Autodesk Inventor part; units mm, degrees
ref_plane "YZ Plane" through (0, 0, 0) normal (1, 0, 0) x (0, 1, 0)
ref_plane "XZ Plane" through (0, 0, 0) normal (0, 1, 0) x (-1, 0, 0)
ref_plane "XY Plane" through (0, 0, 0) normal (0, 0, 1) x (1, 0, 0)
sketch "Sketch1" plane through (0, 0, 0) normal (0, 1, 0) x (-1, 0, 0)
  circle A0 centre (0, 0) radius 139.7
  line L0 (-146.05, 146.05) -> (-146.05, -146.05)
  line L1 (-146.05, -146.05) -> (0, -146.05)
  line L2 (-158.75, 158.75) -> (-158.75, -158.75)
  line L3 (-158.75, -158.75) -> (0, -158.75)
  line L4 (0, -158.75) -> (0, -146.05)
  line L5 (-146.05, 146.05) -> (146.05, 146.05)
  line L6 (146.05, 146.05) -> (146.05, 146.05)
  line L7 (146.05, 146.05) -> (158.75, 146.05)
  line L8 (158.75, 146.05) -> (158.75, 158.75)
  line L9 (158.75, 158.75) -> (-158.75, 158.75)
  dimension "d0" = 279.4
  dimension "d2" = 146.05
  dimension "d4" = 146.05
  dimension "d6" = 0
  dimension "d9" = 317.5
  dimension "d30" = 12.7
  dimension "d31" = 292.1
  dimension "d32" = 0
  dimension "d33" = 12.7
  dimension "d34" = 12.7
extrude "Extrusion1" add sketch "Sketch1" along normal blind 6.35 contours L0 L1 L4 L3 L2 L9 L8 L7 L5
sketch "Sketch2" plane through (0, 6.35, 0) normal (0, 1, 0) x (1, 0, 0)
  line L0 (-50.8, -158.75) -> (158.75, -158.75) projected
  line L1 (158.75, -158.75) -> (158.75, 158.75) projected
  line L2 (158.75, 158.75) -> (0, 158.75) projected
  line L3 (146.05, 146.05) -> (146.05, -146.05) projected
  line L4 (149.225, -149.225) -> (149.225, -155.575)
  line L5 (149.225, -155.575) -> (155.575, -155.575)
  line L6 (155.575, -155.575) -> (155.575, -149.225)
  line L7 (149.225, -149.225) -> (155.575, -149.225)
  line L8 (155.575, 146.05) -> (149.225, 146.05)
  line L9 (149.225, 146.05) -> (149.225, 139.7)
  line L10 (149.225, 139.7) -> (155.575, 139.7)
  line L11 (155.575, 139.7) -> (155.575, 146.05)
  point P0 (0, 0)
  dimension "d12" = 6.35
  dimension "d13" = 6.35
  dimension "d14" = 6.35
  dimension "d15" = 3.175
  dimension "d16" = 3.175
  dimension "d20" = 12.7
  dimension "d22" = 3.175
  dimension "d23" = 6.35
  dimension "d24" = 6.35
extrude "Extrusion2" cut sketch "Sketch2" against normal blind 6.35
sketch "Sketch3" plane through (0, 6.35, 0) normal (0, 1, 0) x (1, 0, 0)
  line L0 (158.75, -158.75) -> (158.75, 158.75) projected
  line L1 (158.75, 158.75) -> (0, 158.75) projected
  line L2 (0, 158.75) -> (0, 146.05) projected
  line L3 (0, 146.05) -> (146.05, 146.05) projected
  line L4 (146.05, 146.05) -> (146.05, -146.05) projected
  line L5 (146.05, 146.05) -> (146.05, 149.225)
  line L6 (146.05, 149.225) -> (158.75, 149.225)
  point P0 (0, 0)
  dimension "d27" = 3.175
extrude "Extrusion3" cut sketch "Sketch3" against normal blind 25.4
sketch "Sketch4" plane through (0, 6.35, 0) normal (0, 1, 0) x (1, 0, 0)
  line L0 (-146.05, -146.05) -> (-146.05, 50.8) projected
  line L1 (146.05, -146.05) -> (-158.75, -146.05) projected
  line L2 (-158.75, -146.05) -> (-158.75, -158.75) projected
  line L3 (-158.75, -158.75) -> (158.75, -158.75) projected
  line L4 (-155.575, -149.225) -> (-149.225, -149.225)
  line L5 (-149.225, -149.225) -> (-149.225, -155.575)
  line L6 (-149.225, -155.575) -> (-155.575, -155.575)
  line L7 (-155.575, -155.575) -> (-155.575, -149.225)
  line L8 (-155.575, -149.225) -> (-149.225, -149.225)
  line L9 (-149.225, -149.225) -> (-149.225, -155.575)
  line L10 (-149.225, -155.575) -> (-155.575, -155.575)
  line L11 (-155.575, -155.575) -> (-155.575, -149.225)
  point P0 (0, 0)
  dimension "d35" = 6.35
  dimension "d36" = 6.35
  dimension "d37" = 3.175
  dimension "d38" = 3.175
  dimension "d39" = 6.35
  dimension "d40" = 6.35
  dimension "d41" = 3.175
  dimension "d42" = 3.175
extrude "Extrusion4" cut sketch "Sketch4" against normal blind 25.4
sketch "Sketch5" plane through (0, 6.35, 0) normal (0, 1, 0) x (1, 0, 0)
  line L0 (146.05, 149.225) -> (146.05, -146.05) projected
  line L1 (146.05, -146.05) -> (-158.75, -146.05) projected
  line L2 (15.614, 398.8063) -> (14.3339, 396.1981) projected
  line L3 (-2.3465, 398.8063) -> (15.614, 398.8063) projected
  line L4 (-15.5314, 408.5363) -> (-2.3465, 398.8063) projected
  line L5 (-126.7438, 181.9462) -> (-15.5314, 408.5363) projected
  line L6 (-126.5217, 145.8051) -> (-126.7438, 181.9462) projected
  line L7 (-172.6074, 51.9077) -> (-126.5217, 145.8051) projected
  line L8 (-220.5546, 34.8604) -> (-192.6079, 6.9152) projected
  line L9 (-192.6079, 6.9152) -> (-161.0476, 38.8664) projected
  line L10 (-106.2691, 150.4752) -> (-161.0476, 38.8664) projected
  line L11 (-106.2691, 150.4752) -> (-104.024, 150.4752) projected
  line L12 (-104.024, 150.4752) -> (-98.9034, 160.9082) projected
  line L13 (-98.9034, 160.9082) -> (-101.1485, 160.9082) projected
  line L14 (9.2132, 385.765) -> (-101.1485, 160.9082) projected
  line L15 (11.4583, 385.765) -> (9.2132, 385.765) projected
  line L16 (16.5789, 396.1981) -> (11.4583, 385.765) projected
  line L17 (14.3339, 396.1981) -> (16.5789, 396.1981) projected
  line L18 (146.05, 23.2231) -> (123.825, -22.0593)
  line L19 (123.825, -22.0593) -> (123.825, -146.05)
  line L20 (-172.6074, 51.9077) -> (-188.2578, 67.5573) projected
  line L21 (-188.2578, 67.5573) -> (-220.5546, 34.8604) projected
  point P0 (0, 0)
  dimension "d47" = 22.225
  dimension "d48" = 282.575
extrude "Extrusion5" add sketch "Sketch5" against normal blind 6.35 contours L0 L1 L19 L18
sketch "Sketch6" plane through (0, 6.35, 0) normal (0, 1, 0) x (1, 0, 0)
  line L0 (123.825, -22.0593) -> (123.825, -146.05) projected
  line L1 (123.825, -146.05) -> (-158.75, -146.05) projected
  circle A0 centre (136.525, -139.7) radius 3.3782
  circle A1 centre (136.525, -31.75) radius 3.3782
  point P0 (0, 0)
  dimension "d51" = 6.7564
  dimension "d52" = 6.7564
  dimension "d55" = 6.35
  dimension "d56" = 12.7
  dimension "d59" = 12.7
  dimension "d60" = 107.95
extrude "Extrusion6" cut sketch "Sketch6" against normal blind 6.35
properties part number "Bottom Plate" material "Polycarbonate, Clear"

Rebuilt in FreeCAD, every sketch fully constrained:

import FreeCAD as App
import Part
import Sketcher

V = App.Vector
Q = App.Units.Quantity

doc = App.newDocument("Part")
params = doc.addObject("Spreadsheet::Sheet", "Params")
for row, (alias, value) in enumerate([
    ("sketch1_width", "12.5 in"),
    ("sketch1_height", "11.5 in"),
    ("sketch1_width2", "5.75 in"),
    ("pad1_length", "0.25 in"),
    ("sketch2_width", "0.25 in"),
    ("pocket1_length", "0.25 in"),
    ("sketch3_height", "0.125 in"),
    ("sketch3_width", "0.5 in"),
    ("sketch3_width2", "6.25 in"),
    ("pocket2_length", "1 in"),
    ("sketch4_width", "0.25 in"),
    ("pocket3_length", "1 in"),
    ("sketch5_width", "0.875 in"),
    ("pad2_length", "0.25 in"),
    ("sketch6_diameter", "0.266 in"),
    ("pocket4_length", "0.25 in"),
], start=1):
    params.set(f"A{row}", alias)
    params.set(f"B{row}", "=" + value)
    params.setAlias(f"B{row}", alias)

body = doc.addObject("PartDesign::Body", "Body")

# Sketch on XZ plane
sketch1 = body.newObject("Sketcher::SketchObject", "Sketch")
sketch1.AttachmentSupport = (doc.getObject("XZ_Plane"), [""])
sketch1.MapMode = "FlatFace"
sketch1.addGeometry(Part.LineSegment(V(146, -146, 0), V(146, 146, 0)), False)
sketch1.addGeometry(Part.LineSegment(V(146, 146, 0), V(-159, 146, 0)), False)
sketch1.addGeometry(Part.LineSegment(V(-159, 146, 0), V(-159, 159, 0)), False)
sketch1.addGeometry(Part.LineSegment(V(-159, 159, 0), V(159, 159, 0)), False)
sketch1.addGeometry(Part.LineSegment(V(159, 159, 0), V(159, -159, 0)), False)
sketch1.addGeometry(Part.LineSegment(V(159, -159, 0), V(0, -159, 0)), False)
sketch1.addGeometry(Part.LineSegment(V(0, -159, 0), V(0, -146, 0)), False)
sketch1.addGeometry(Part.LineSegment(V(0, -146, 0), V(146, -146, 0)), False)
sketch1.addConstraint(Sketcher.Constraint("Coincident", 0, 2, 1, 1))
sketch1.addConstraint(Sketcher.Constraint("Coincident", 1, 2, 2, 1))
sketch1.addConstraint(Sketcher.Constraint("Coincident", 2, 2, 3, 1))
sketch1.addConstraint(Sketcher.Constraint("Coincident", 3, 2, 4, 1))
sketch1.addConstraint(Sketcher.Constraint("Coincident", 4, 2, 5, 1))
sketch1.addConstraint(Sketcher.Constraint("Coincident", 5, 2, 6, 1))
sketch1.addConstraint(Sketcher.Constraint("Coincident", 6, 2, 7, 1))
sketch1.addConstraint(Sketcher.Constraint("Coincident", 7, 2, 0, 1))
sketch1.addConstraint(Sketcher.Constraint("Vertical", 0))
sketch1.addConstraint(Sketcher.Constraint("Horizontal", 1))
sketch1.addConstraint(Sketcher.Constraint("Vertical", 2))
sketch1.addConstraint(Sketcher.Constraint("Horizontal", 3))
sketch1.addConstraint(Sketcher.Constraint("Vertical", 4))
sketch1.addConstraint(Sketcher.Constraint("Horizontal", 5))
sketch1.addConstraint(Sketcher.Constraint("Vertical", 6))
sketch1.addConstraint(Sketcher.Constraint("Horizontal", 7))
sketch1.addConstraint(Sketcher.Constraint("Symmetric", 2, 2, 4, 2, -1, 1))
sketch1.addConstraint(Sketcher.Constraint("PointOnObject", 5, 2, -2))
sketch1.addConstraint(Sketcher.Constraint("Equal", 3, 4))
sketch1.addConstraint(Sketcher.Constraint("Equal", 2, 6))
sketch1.addConstraint(Sketcher.Constraint("DistanceX", 3, 1, 3, 2, Q("12.5 in")))
sketch1.addConstraint(Sketcher.Constraint("DistanceY", 0, 1, 0, 2, Q("11.5 in")))
sketch1.addConstraint(Sketcher.Constraint("DistanceX", 7, 1, 7, 2, Q("5.75 in")))
sketch1.setExpression("Constraints[20]", "Params.sketch1_width")
sketch1.setExpression("Constraints[21]", "Params.sketch1_height")
sketch1.setExpression("Constraints[22]", "Params.sketch1_width2")
pad1 = body.newObject("PartDesign::Pad", "Pad")
pad1.Profile = sketch1
pad1.setExpression("Length", "Params.pad1_length")
pad1.Reversed = True

# Sketch on XZ plane
sketch2 = body.newObject("Sketcher::SketchObject", "Sketch001")
sketch2.AttachmentSupport = (doc.getObject("XZ_Plane"), [""])
sketch2.MapMode = "FlatFace"
sketch2.AttachmentOffset = App.Placement(V(0, 0, -0.25 * 25.4), App.Rotation())
sketch2.addGeometry(Part.LineSegment(V(156, 149, 0), V(149, 149, 0)), False)
sketch2.addGeometry(Part.LineSegment(V(149, 149, 0), V(149, 156, 0)), False)
sketch2.addGeometry(Part.LineSegment(V(149, 156, 0), V(156, 156, 0)), False)
sketch2.addGeometry(Part.LineSegment(V(156, 156, 0), V(156, 149, 0)), False)
sketch2.addGeometry(Part.LineSegment(V(156, -140, 0), V(156, -146, 0)), False)
sketch2.addGeometry(Part.LineSegment(V(156, -146, 0), V(149, -146, 0)), False)
sketch2.addGeometry(Part.LineSegment(V(149, -146, 0), V(149, -140, 0)), False)
sketch2.addGeometry(Part.LineSegment(V(149, -140, 0), V(156, -140, 0)), False)
sketch2.addConstraint(Sketcher.Constraint("Coincident", 0, 2, 1, 1))
sketch2.addConstraint(Sketcher.Constraint("Coincident", 1, 2, 2, 1))
sketch2.addConstraint(Sketcher.Constraint("Coincident", 2, 2, 3, 1))
sketch2.addConstraint(Sketcher.Constraint("Coincident", 3, 2, 0, 1))
sketch2.addConstraint(Sketcher.Constraint("Coincident", 4, 2, 5, 1))
sketch2.addConstraint(Sketcher.Constraint("Coincident", 5, 2, 6, 1))
sketch2.addConstraint(Sketcher.Constraint("Coincident", 6, 2, 7, 1))
sketch2.addConstraint(Sketcher.Constraint("Coincident", 7, 2, 4, 1))
sketch2.addConstraint(Sketcher.Constraint("Horizontal", 0))
sketch2.addConstraint(Sketcher.Constraint("Vertical", 1))
sketch2.addConstraint(Sketcher.Constraint("Horizontal", 2))
sketch2.addConstraint(Sketcher.Constraint("Vertical", 3))
sketch2.addConstraint(Sketcher.Constraint("Vertical", 4))
sketch2.addConstraint(Sketcher.Constraint("Horizontal", 5))
sketch2.addConstraint(Sketcher.Constraint("Vertical", 6))
sketch2.addConstraint(Sketcher.Constraint("Horizontal", 7))
sketch2.addConstraint(Sketcher.Constraint("Vertical", 3, 2, 4, 2))
sketch2.addConstraint(Sketcher.Constraint("Vertical", 1, 2, 5, 2))
sketch2.addConstraint(Sketcher.Constraint("Equal", 7, 1))
sketch2.addConstraint(Sketcher.Constraint("Equal", 3, 4))
sketch2.addConstraint(Sketcher.Constraint("DistanceX", 0, 2, 0, 1, Q("0.25 in")))
sketch2.addConstraint(Sketcher.Constraint("DistanceY", 6, 2, -1, 1, Q("5.5 in")))
sketch2.addConstraint(Sketcher.Constraint("DistanceX", -1, 1, 0, 2, Q("5.875 in")))
sketch2.addConstraint(Sketcher.Constraint("DistanceY", -1, 1, 0, 2, Q("5.875 in")))
sketch2.setExpression("Constraints[20]", "Params.sketch2_width")
pocket1 = body.newObject("PartDesign::Pocket", "Pocket")
pocket1.Profile = sketch2
pocket1.setExpression("Length", "Params.pocket1_length")
pocket1.Reversed = True

# Sketch on XZ plane
sketch3 = body.newObject("Sketcher::SketchObject", "Sketch002")
sketch3.AttachmentSupport = (doc.getObject("XZ_Plane"), [""])
sketch3.MapMode = "FlatFace"
sketch3.AttachmentOffset = App.Placement(V(0, 0, -0.25 * 25.4), App.Rotation())
sketch3.addGeometry(Part.LineSegment(V(146.1, -149.2, 0), V(158.8, -149.2, 0)), False)
sketch3.addGeometry(Part.LineSegment(V(158.8, -149.2, 0), V(158.8, -158.8, 0)), False)
sketch3.addGeometry(Part.LineSegment(V(158.8, -158.8, 0), V(0, -158.8, 0)), False)
sketch3.addGeometry(Part.LineSegment(V(0, -158.8, 0), V(0, -146.1, 0)), False)
sketch3.addGeometry(Part.LineSegment(V(0, -146.1, 0), V(146.1, -146.1, 0)), False)
sketch3.addGeometry(Part.LineSegment(V(146.1, -146.1, 0), V(146.1, -149.2, 0)), False)
sketch3.addConstraint(Sketcher.Constraint("Coincident", 0, 2, 1, 1))
sketch3.addConstraint(Sketcher.Constraint("Coincident", 1, 2, 2, 1))
sketch3.addConstraint(Sketcher.Constraint("Coincident", 2, 2, 3, 1))
sketch3.addConstraint(Sketcher.Constraint("Coincident", 3, 2, 4, 1))
sketch3.addConstraint(Sketcher.Constraint("Coincident", 4, 2, 5, 1))
sketch3.addConstraint(Sketcher.Constraint("Coincident", 5, 2, 0, 1))
sketch3.addConstraint(Sketcher.Constraint("Horizontal", 0))
sketch3.addConstraint(Sketcher.Constraint("Vertical", 1))
sketch3.addConstraint(Sketcher.Constraint("Horizontal", 2))
sketch3.addConstraint(Sketcher.Constraint("Vertical", 3))
sketch3.addConstraint(Sketcher.Constraint("Horizontal", 4))
sketch3.addConstraint(Sketcher.Constraint("Vertical", 5))
sketch3.addConstraint(Sketcher.Constraint("PointOnObject", 2, 2, -2))
sketch3.addConstraint(Sketcher.Constraint("Equal", 0, 3))
sketch3.addConstraint(Sketcher.Constraint("DistanceY", 5, 2, 5, 1, Q("0.125 in")))
sketch3.addConstraint(Sketcher.Constraint("DistanceX", 0, 1, 0, 2, Q("0.5 in")))
sketch3.addConstraint(Sketcher.Constraint("DistanceX", 2, 2, 2, 1, Q("6.25 in")))
sketch3.addConstraint(Sketcher.Constraint("DistanceY", 1, 2, -1, 1, Q("6.25 in")))
sketch3.setExpression("Constraints[14]", "Params.sketch3_height")
sketch3.setExpression("Constraints[15]", "Params.sketch3_width")
sketch3.setExpression("Constraints[16]", "Params.sketch3_width2")
pocket2 = body.newObject("PartDesign::Pocket", "Pocket001")
pocket2.Profile = sketch3
pocket2.setExpression("Length", "Params.pocket2_length")
pocket2.Reversed = True

# Sketch on XZ plane
sketch4 = body.newObject("Sketcher::SketchObject", "Sketch003")
sketch4.AttachmentSupport = (doc.getObject("XZ_Plane"), [""])
sketch4.MapMode = "FlatFace"
sketch4.AttachmentOffset = App.Placement(V(0, 0, -0.25 * 25.4), App.Rotation())
sketch4.addGeometry(Part.LineSegment(V(-149, 149, 0), V(-156, 149, 0)), False)
sketch4.addGeometry(Part.LineSegment(V(-156, 149, 0), V(-156, 156, 0)), False)
sketch4.addGeometry(Part.LineSegment(V(-156, 156, 0), V(-149, 156, 0)), False)
sketch4.addGeometry(Part.LineSegment(V(-149, 156, 0), V(-149, 149, 0)), False)
sketch4.addConstraint(Sketcher.Constraint("Coincident", 0, 2, 1, 1))
sketch4.addConstraint(Sketcher.Constraint("Coincident", 1, 2, 2, 1))
sketch4.addConstraint(Sketcher.Constraint("Coincident", 2, 2, 3, 1))
sketch4.addConstraint(Sketcher.Constraint("Coincident", 3, 2, 0, 1))
sketch4.addConstraint(Sketcher.Constraint("Horizontal", 0))
sketch4.addConstraint(Sketcher.Constraint("Vertical", 1))
sketch4.addConstraint(Sketcher.Constraint("Horizontal", 2))
sketch4.addConstraint(Sketcher.Constraint("Vertical", 3))
sketch4.addConstraint(Sketcher.Constraint("Equal", 2, 1))
sketch4.addConstraint(Sketcher.Constraint("DistanceX", 0, 2, 0, 1, Q("0.25 in")))
sketch4.addConstraint(Sketcher.Constraint("DistanceX", 0, 2, -1, 1, Q("6.125 in")))
sketch4.addConstraint(Sketcher.Constraint("DistanceY", -1, 1, 0, 2, Q("5.875 in")))
sketch4.setExpression("Constraints[9]", "Params.sketch4_width")
pocket3 = body.newObject("PartDesign::Pocket", "Pocket002")
pocket3.Profile = sketch4
pocket3.setExpression("Length", "Params.pocket3_length")
pocket3.Reversed = True

# Sketch on XZ plane
sketch5 = body.newObject("Sketcher::SketchObject", "Sketch004")
sketch5.AttachmentSupport = (doc.getObject("XZ_Plane"), [""])
sketch5.MapMode = "FlatFace"
sketch5.AttachmentOffset = App.Placement(V(0, 0, -0.25 * 25.4), App.Rotation())
sketch5.addGeometry(Part.LineSegment(V(146, 146, 0), V(146, -23, 0)), False)
sketch5.addGeometry(Part.LineSegment(V(146, -23, 0), V(124, 22, 0)), False)
sketch5.addGeometry(Part.LineSegment(V(124, 22, 0), V(124, 146, 0)), False)
sketch5.addGeometry(Part.LineSegment(V(124, 146, 0), V(146, 146, 0)), False)
sketch5.addConstraint(Sketcher.Constraint("Coincident", 0, 2, 1, 1))
sketch5.addConstraint(Sketcher.Constraint("Coincident", 1, 2, 2, 1))
sketch5.addConstraint(Sketcher.Constraint("Coincident", 2, 2, 3, 1))
sketch5.addConstraint(Sketcher.Constraint("Coincident", 3, 2, 0, 1))
sketch5.addConstraint(Sketcher.Constraint("Vertical", 0))
sketch5.addConstraint(Sketcher.Constraint("Vertical", 2))
sketch5.addConstraint(Sketcher.Constraint("Horizontal", 3))
sketch5.addConstraint(Sketcher.Constraint("DistanceX", 3, 1, 3, 2, Q("0.875 in")))
sketch5.addConstraint(Sketcher.Constraint("DistanceX", -1, 1, 0, 2, Q("5.75 in")))
sketch5.addConstraint(Sketcher.Constraint("DistanceY", -1, 1, 2, 2, Q("5.75 in")))
sketch5.addConstraint(Sketcher.Constraint("DistanceY", 0, 2, 0, 1, Q("6.6643 in")))
sketch5.addConstraint(Sketcher.Constraint("DistanceY", 2, 1, 2, 2, Q("123.9907 mm")))
sketch5.setExpression("Constraints[7]", "Params.sketch5_width")
pad2 = body.newObject("PartDesign::Pad", "Pad001")
pad2.Profile = sketch5
pad2.setExpression("Length", "Params.pad2_length")

# Sketch on XZ plane
sketch6 = body.newObject("Sketcher::SketchObject", "Sketch005")
sketch6.AttachmentSupport = (doc.getObject("XZ_Plane"), [""])
sketch6.MapMode = "FlatFace"
sketch6.AttachmentOffset = App.Placement(V(0, 0, -0.25 * 25.4), App.Rotation())
sketch6.addGeometry(Part.Circle(V(136.5, 139.7, 0), V(0, 0, 1), 3.4), False)
sketch6.addGeometry(Part.Circle(V(136.5, 31.8, 0), V(0, 0, 1), 3.4), False)
sketch6.addConstraint(Sketcher.Constraint("Equal", 0, 1))
sketch6.addConstraint(Sketcher.Constraint("Vertical", 0, 3, 1, 3))
sketch6.addConstraint(Sketcher.Constraint("Diameter", 0, Q("0.266 in")))
sketch6.addConstraint(Sketcher.Constraint("DistanceY", 1, 3, 0, 3, Q("4.25 in")))
sketch6.addConstraint(Sketcher.Constraint("DistanceY", -1, 1, 0, 3, Q("5.5 in")))
sketch6.addConstraint(Sketcher.Constraint("DistanceX", -1, 1, 0, 3, Q("5.375 in")))
sketch6.setExpression("Constraints[2]", "Params.sketch6_diameter")
pocket4 = body.newObject("PartDesign::Pocket", "Pocket003")
pocket4.Profile = sketch6
pocket4.setExpression("Length", "Params.pocket4_length")
pocket4.Reversed = True

doc.recompute()
